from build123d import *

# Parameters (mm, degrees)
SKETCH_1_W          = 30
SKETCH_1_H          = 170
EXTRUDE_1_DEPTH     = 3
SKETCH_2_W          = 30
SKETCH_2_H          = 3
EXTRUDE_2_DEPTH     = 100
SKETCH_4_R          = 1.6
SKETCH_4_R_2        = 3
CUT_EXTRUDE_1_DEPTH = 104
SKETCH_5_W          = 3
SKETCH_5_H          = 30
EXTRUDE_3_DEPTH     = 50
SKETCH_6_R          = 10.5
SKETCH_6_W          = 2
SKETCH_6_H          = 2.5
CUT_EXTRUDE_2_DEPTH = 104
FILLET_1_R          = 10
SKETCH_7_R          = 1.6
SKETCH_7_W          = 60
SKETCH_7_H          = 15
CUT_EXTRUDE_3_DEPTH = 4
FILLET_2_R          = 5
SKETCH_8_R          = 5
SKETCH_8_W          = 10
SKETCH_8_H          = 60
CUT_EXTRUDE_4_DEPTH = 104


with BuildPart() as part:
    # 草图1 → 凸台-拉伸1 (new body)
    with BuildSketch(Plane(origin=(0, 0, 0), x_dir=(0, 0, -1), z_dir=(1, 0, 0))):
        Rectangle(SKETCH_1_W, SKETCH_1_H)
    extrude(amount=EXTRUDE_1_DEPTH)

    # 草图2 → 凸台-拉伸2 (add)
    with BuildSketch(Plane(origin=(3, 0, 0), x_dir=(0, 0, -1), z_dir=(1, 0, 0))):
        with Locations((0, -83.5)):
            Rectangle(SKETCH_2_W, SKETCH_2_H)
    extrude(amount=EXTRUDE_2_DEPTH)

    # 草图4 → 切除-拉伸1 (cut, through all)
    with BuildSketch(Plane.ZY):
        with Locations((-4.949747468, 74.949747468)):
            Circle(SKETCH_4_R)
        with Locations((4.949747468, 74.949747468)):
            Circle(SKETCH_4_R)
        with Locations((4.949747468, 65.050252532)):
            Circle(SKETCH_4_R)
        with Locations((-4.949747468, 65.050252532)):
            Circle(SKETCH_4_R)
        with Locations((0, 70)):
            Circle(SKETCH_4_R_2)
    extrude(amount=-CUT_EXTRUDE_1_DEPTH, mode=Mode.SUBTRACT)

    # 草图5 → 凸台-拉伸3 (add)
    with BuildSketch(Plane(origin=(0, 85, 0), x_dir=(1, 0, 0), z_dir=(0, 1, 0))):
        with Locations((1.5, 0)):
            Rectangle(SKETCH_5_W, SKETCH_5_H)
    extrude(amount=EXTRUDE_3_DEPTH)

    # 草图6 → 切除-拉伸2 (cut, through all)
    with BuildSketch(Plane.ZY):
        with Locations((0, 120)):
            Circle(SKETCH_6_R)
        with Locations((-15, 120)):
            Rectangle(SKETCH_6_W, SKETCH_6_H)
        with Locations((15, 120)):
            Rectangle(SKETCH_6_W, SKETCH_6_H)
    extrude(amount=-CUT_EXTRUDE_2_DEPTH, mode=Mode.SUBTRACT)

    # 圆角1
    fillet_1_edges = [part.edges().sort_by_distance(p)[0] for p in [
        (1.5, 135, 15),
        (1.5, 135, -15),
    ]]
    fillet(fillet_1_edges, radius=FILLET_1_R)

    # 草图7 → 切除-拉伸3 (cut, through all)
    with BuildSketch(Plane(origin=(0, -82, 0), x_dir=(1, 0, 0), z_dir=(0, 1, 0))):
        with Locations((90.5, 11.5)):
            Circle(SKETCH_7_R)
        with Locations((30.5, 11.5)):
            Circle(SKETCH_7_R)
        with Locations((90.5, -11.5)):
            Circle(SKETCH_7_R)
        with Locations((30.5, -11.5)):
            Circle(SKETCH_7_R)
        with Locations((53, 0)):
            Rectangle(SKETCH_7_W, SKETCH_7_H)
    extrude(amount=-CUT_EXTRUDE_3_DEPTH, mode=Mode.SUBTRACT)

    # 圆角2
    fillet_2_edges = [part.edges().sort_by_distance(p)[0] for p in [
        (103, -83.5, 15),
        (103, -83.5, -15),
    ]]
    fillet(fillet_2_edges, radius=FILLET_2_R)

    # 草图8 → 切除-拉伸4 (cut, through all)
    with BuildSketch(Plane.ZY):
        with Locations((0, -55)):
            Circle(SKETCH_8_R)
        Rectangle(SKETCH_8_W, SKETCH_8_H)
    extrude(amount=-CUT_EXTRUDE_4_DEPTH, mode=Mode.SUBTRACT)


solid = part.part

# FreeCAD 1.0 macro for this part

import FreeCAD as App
import Part
import Sketcher

V = App.Vector


def edges_at(feature, points):
    """Names of the edges that pass closest to the given points."""
    edges = feature.Shape.Edges
    near = lambda p: min(range(len(edges)), key=lambda i: edges[i].distToShape(Part.Vertex(*p))[0])
    return sorted({f"Edge{near(p) + 1}" for p in points})

doc = App.newDocument("Part")
body = doc.addObject("PartDesign::Body", "Body")

sketch1 = body.newObject("Sketcher::SketchObject", "Sketch")
sketch1.AttachmentSupport = (doc.getObject("YZ_Plane"), [""])
sketch1.MapMode = "FlatFace"
sketch1.addGeometry(Part.LineSegment(V(85, 15, 0), V(-85, 15, 0)), False)
sketch1.addGeometry(Part.LineSegment(V(-85, 15, 0), V(-85, -15, 0)), False)
sketch1.addGeometry(Part.LineSegment(V(-85, -15, 0), V(85, -15, 0)), False)
sketch1.addGeometry(Part.LineSegment(V(85, -15, 0), V(85, 15, 0)), False)
sketch1.addConstraint(Sketcher.Constraint("Coincident", 0, 2, 1, 1))
sketch1.addConstraint(Sketcher.Constraint("Coincident", 1, 2, 2, 1))
sketch1.addConstraint(Sketcher.Constraint("Coincident", 2, 2, 3, 1))
sketch1.addConstraint(Sketcher.Constraint("Coincident", 3, 2, 0, 1))
sketch1.addConstraint(Sketcher.Constraint("Horizontal", 0))
sketch1.addConstraint(Sketcher.Constraint("Vertical", 1))
sketch1.addConstraint(Sketcher.Constraint("Horizontal", 2))
sketch1.addConstraint(Sketcher.Constraint("Vertical", 3))
sketch1.addConstraint(Sketcher.Constraint("Symmetric", 0, 2, 2, 2, -1, 1))
sketch1.addConstraint(Sketcher.Constraint("DistanceX", 0, 2, 0, 1, 170.0))
sketch1.addConstraint(Sketcher.Constraint("DistanceY", 1, 2, 1, 1, 30.0))
pad1 = body.newObject("PartDesign::Pad", "Pad")
pad1.Profile = sketch1
pad1.Length = 3

sketch2 = body.newObject("Sketcher::SketchObject", "Sketch001")
sketch2.AttachmentSupport = (doc.getObject("YZ_Plane"), [""])
sketch2.MapMode = "FlatFace"
sketch2.AttachmentOffset = App.Placement(V(0, 0, 3), App.Rotation())
sketch2.addGeometry(Part.LineSegment(V(-82, 15, 0), V(-85, 15, 0)), False)
sketch2.addGeometry(Part.LineSegment(V(-85, 15, 0), V(-85, -15, 0)), False)
sketch2.addGeometry(Part.LineSegment(V(-85, -15, 0), V(-82, -15, 0)), False)
sketch2.addGeometry(Part.LineSegment(V(-82, -15, 0), V(-82, 15, 0)), False)
sketch2.addConstraint(Sketcher.Constraint("Coincident", 0, 2, 1, 1))
sketch2.addConstraint(Sketcher.Constraint("Coincident", 1, 2, 2, 1))
sketch2.addConstraint(Sketcher.Constraint("Coincident", 2, 2, 3, 1))
sketch2.addConstraint(Sketcher.Constraint("Coincident", 3, 2, 0, 1))
sketch2.addConstraint(Sketcher.Constraint("Horizontal", 0))
sketch2.addConstraint(Sketcher.Constraint("Vertical", 1))
sketch2.addConstraint(Sketcher.Constraint("Horizontal", 2))
sketch2.addConstraint(Sketcher.Constraint("Vertical", 3))
sketch2.addConstraint(Sketcher.Constraint("DistanceX", 0, 2, 0, 1, 3.0))
sketch2.addConstraint(Sketcher.Constraint("DistanceY", 1, 2, 1, 1, 30.0))
sketch2.addConstraint(Sketcher.Constraint("DistanceX", 0, 2, -1, 1, 85.0))
sketch2.addConstraint(Sketcher.Constraint("DistanceY", -1, 1, 0, 2, 15.0))
pad2 = body.newObject("PartDesign::Pad", "Pad001")
pad2.Profile = sketch2
pad2.Length = 100

sketch3 = body.newObject("Sketcher::SketchObject", "Sketch002")
sketch3.AttachmentSupport = (doc.getObject("YZ_Plane"), [""])
sketch3.MapMode = "FlatFace"
sketch3.addGeometry(Part.Circle(V(74.949747, -4.949747, 0), V(0, 0, 1), 1.6), False)
sketch3.addGeometry(Part.Circle(V(74.949747, 4.949747, 0), V(0, 0, 1), 1.6), False)
sketch3.addGeometry(Part.Circle(V(65.050253, 4.949747, 0), V(0, 0, 1), 1.6), False)
sketch3.addGeometry(Part.Circle(V(65.050253, -4.949747, 0), V(0, 0, 1), 1.6), False)
sketch3.addGeometry(Part.Circle(V(70, 0, 0), V(0, 0, 1), 3), False)
sketch3.addConstraint(Sketcher.Constraint("Equal", 0, 1))
sketch3.addConstraint(Sketcher.Constraint("Equal", 1, 2))
sketch3.addConstraint(Sketcher.Constraint("Equal", 2, 3))
sketch3.addConstraint(Sketcher.Constraint("Symmetric", 0, 3, 1, 3, -1))
sketch3.addConstraint(Sketcher.Constraint("Symmetric", 2, 3, 3, 3, -1))
sketch3.addConstraint(Sketcher.Constraint("PointOnObject", 4, 3, -1))
sketch3.addConstraint(Sketcher.Constraint("Horizontal", 1, 3, 2, 3))
sketch3.addConstraint(Sketcher.Constraint("Diameter", 4, 6.0))
sketch3.addConstraint(Sketcher.Constraint("Diameter", 0, 3.2))
sketch3.addConstraint(Sketcher.Constraint("DistanceX", -1, 1, 4, 3, 70.0))
sketch3.addConstraint(Sketcher.Constraint("DistanceX", -1, 1, 0, 3, 74.949747))
sketch3.addConstraint(Sketcher.Constraint("DistanceY", 0, 3, -1, 1, 4.949747))
sketch3.addConstraint(Sketcher.Constraint("DistanceX", -1, 1, 2, 3, 65.050253))
pocket1 = body.newObject("PartDesign::Pocket", "Pocket")
pocket1.Profile = sketch3
pocket1.Type = "ThroughAll"
pocket1.Reversed = True

sketch4 = body.newObject("Sketcher::SketchObject", "Sketch003")
sketch4.AttachmentSupport = (doc.getObject("XZ_Plane"), [""])
sketch4.MapMode = "FlatFace"
sketch4.AttachmentOffset = App.Placement(V(0, 0, -85), App.Rotation())
sketch4.addGeometry(Part.LineSegment(V(0, -15, 0), V(0, 15, 0)), False)
sketch4.addGeometry(Part.LineSegment(V(0, 15, 0), V(3, 15, 0)), False)
sketch4.addGeometry(Part.LineSegment(V(3, 15, 0), V(3, -15, 0)), False)
sketch4.addGeometry(Part.LineSegment(V(3, -15, 0), V(0, -15, 0)), False)
sketch4.addConstraint(Sketcher.Constraint("Coincident", 0, 2, 1, 1))
sketch4.addConstraint(Sketcher.Constraint("Coincident", 1, 2, 2, 1))
sketch4.addConstraint(Sketcher.Constraint("Coincident", 2, 2, 3, 1))
sketch4.addConstraint(Sketcher.Constraint("Coincident", 3, 2, 0, 1))
sketch4.addConstraint(Sketcher.Constraint("Vertical", 0))
sketch4.addConstraint(Sketcher.Constraint("Horizontal", 1))
sketch4.addConstraint(Sketcher.Constraint("Vertical", 2))
sketch4.addConstraint(Sketcher.Constraint("Horizontal", 3))
sketch4.addConstraint(Sketcher.Constraint("Symmetric", 0, 2, 3, 2, -1, 1))
sketch4.addConstraint(Sketcher.Constraint("DistanceX", 1, 1, 1, 2, 3.0))
sketch4.addConstraint(Sketcher.Constraint("DistanceY", 0, 1, 0, 2, 30.0))
pad3 = body.newObject("PartDesign::Pad", "Pad002")
pad3.Profile = sketch4
pad3.Length = 50
pad3.Reversed = True

sketch5 = body.newObject("Sketcher::SketchObject", "Sketch004")
sketch5.AttachmentSupport = (doc.getObject("YZ_Plane"), [""])
sketch5.MapMode = "FlatFace"
sketch5.addGeometry(Part.Circle(V(120, 0, 0), V(0, 0, 1), 10.5), False)
sketch5.addGeometry(Part.LineSegment(V(121.25, -16, 0), V(118.75, -16, 0)), False)
sketch5.addGeometry(Part.LineSegment(V(118.75, -16, 0), V(118.75, -14, 0)), False)
sketch5.addGeometry(Part.LineSegment(V(118.75, -14, 0), V(121.25, -14, 0)), False)
sketch5.addGeometry(Part.LineSegment(V(121.25, -14, 0), V(121.25, -16, 0)), False)
sketch5.addGeometry(Part.LineSegment(V(121.25, 14, 0), V(118.75, 14, 0)), False)
sketch5.addGeometry(Part.LineSegment(V(118.75, 14, 0), V(118.75, 16, 0)), False)
sketch5.addGeometry(Part.LineSegment(V(118.75, 16, 0), V(121.25, 16, 0)), False)
sketch5.addGeometry(Part.LineSegment(V(121.25, 16, 0), V(121.25, 14, 0)), False)
sketch5.addConstraint(Sketcher.Constraint("Coincident", 1, 2, 2, 1))
sketch5.addConstraint(Sketcher.Constraint("Coincident", 2, 2, 3, 1))
sketch5.addConstraint(Sketcher.Constraint("Coincident", 3, 2, 4, 1))
sketch5.addConstraint(Sketcher.Constraint("Coincident", 4, 2, 1, 1))
sketch5.addConstraint(Sketcher.Constraint("Coincident", 5, 2, 6, 1))
sketch5.addConstraint(Sketcher.Constraint("Coincident", 6, 2, 7, 1))
sketch5.addConstraint(Sketcher.Constraint("Coincident", 7, 2, 8, 1))
sketch5.addConstraint(Sketcher.Constraint("Coincident", 8, 2, 5, 1))
sketch5.addConstraint(Sketcher.Constraint("Horizontal", 1))
sketch5.addConstraint(Sketcher.Constraint("Vertical", 2))
sketch5.addConstraint(Sketcher.Constraint("Horizontal", 3))
sketch5.addConstraint(Sketcher.Constraint("Vertical", 4))
sketch5.addConstraint(Sketcher.Constraint("Horizontal", 5))
sketch5.addConstraint(Sketcher.Constraint("Vertical", 6))
sketch5.addConstraint(Sketcher.Constraint("Horizontal", 7))
sketch5.addConstraint(Sketcher.Constraint("Vertical", 8))
sketch5.addConstraint(Sketcher.Constraint("Symmetric", 2, 2, 5, 2, -1))
sketch5.addConstraint(Sketcher.Constraint("Symmetric", 4, 2, 7, 2, -1))
sketch5.addConstraint(Sketcher.Constraint("PointOnObject", 0, 3, -1))
sketch5.addConstraint(Sketcher.Constraint("Diameter", 0, 21.0))
sketch5.addConstraint(Sketcher.Constraint("DistanceY", 2, 1, 2, 2, 2.0))
sketch5.addConstraint(Sketcher.Constraint("DistanceX", 1, 2, 1, 1, 2.5))
sketch5.addConstraint(Sketcher.Constraint("DistanceX", -1, 1, 0, 3, 120.0))
sketch5.addConstraint(Sketcher.Constraint("DistanceY", 1, 2, -1, 1, 16.0))
sketch5.addConstraint(Sketcher.Constraint("DistanceX", -1, 1, 1, 2, 118.75))
pocket2 = body.newObject("PartDesign::Pocket", "Pocket001")
pocket2.Profile = sketch5
pocket2.Type = "ThroughAll"
pocket2.Reversed = True
doc.recompute()

fillet = body.newObject("PartDesign::Fillet", "Fillet")
fillet.Base = (pocket2, edges_at(pocket2, [(1.5, 135, 15), (1.5, 135, -15)]))
fillet.Radius = 10

sketch6 = body.newObject("Sketcher::SketchObject", "Sketch005")
sketch6.AttachmentSupport = (doc.getObject("XZ_Plane"), [""])
sketch6.MapMode = "FlatFace"
sketch6.AttachmentOffset = App.Placement(V(0, 0, 82), App.Rotation())
sketch6.addGeometry(Part.Circle(V(90.5, -11.5, 0), V(0, 0, 1), 1.6), False)
sketch6.addGeometry(Part.Circle(V(30.5, -11.5, 0), V(0, 0, 1), 1.6), False)
sketch6.addGeometry(Part.Circle(V(90.5, 11.5, 0), V(0, 0, 1), 1.6), False)
sketch6.addGeometry(Part.Circle(V(30.5, 11.5, 0), V(0, 0, 1), 1.6), False)
sketch6.addGeometry(Part.LineSegment(V(23, -7.5, 0), V(23, 7.5, 0)), False)
sketch6.addGeometry(Part.LineSegment(V(23, 7.5, 0), V(83, 7.5, 0)), False)
sketch6.addGeometry(Part.LineSegment(V(83, 7.5, 0), V(83, -7.5, 0)), False)
sketch6.addGeometry(Part.LineSegment(V(83, -7.5, 0), V(23, -7.5, 0)), False)
sketch6.addConstraint(Sketcher.Constraint("Coincident", 4, 2, 5, 1))
sketch6.addConstraint(Sketcher.Constraint("Coincident", 5, 2, 6, 1))
sketch6.addConstraint(Sketcher.Constraint("Coincident", 6, 2, 7, 1))
sketch6.addConstraint(Sketcher.Constraint("Coincident", 7, 2, 4, 1))
sketch6.addConstraint(Sketcher.Constraint("Vertical", 4))
sketch6.addConstraint(Sketcher.Constraint("Horizontal", 5))
sketch6.addConstraint(Sketcher.Constraint("Vertical", 6))
sketch6.addConstraint(Sketcher.Constraint("Horizontal", 7))
sketch6.addConstraint(Sketcher.Constraint("Equal", 0, 1))
sketch6.addConstraint(Sketcher.Constraint("Equal", 1, 2))
sketch6.addConstraint(Sketcher.Constraint("Equal", 2, 3))
sketch6.addConstraint(Sketcher.Constraint("Symmetric", 0, 3, 2, 3, -1))
sketch6.addConstraint(Sketcher.Constraint("Symmetric", 1, 3, 3, 3, -1))
sketch6.addConstraint(Sketcher.Constraint("Horizontal", 0, 3, 1, 3))
sketch6.addConstraint(Sketcher.Constraint("Diameter", 0, 3.2))
sketch6.addConstraint(Sketcher.Constraint("DistanceX", 5, 1, 5, 2, 60.0))
sketch6.addConstraint(Sketcher.Constraint("DistanceY", 4, 1, 4, 2, 15.0))
sketch6.addConstraint(Sketcher.Constraint("DistanceX", -1, 1, 4, 2, 23.0))
sketch6.addConstraint(Sketcher.Constraint("DistanceX", 1, 3, 0, 3, 60.0))
sketch6.addConstraint(Sketcher.Constraint("DistanceY", 0, 3, 2, 3, 23.0))
sketch6.addConstraint(Sketcher.Constraint("DistanceY", 4, 2, 3, 3, 4.0))
sketch6.addConstraint(Sketcher.Constraint("DistanceX", -1, 1, 0, 3, 90.5))
pocket3 = body.newObject("PartDesign::Pocket", "Pocket002")
pocket3.Profile = sketch6
pocket3.Type = "ThroughAll"
pocket3.Reversed = True
doc.recompute()

fillet2 = body.newObject("PartDesign::Fillet", "Fillet001")
fillet2.Base = (pocket3, edges_at(pocket3, [(103, -83.5, 15), (103, -83.5, -15)]))
fillet2.Radius = 5

sketch7 = body.newObject("Sketcher::SketchObject", "Sketch006")
sketch7.AttachmentSupport = (doc.getObject("YZ_Plane"), [""])
sketch7.MapMode = "FlatFace"
sketch7.addGeometry(Part.Circle(V(-55, 0, 0), V(0, 0, 1), 5), False)
sketch7.addGeometry(Part.LineSegment(V(30, -5, 0), V(-30, -5, 0)), False)
sketch7.addGeometry(Part.LineSegment(V(-30, -5, 0), V(-30, 5, 0)), False)
sketch7.addGeometry(Part.LineSegment(V(-30, 5, 0), V(30, 5, 0)), False)
sketch7.addGeometry(Part.LineSegment(V(30, 5, 0), V(30, -5, 0)), False)
sketch7.addConstraint(Sketcher.Constraint("Coincident", 1, 2, 2, 1))
sketch7.addConstraint(Sketcher.Constraint("Coincident", 2, 2, 3, 1))
sketch7.addConstraint(Sketcher.Constraint("Coincident", 3, 2, 4, 1))
sketch7.addConstraint(Sketcher.Constraint("Coincident", 4, 2, 1, 1))
sketch7.addConstraint(Sketcher.Constraint("Horizontal", 1))
sketch7.addConstraint(Sketcher.Constraint("Vertical", 2))
sketch7.addConstraint(Sketcher.Constraint("Horizontal", 3))
sketch7.addConstraint(Sketcher.Constraint("Vertical", 4))
sketch7.addConstraint(Sketcher.Constraint("Symmetric", 1, 2, 3, 2, -1, 1))
sketch7.addConstraint(Sketcher.Constraint("PointOnObject", 0, 3, -1))
sketch7.addConstraint(Sketcher.Constraint("Diameter", 0, 10.0))
sketch7.addConstraint(Sketcher.Constraint("DistanceX", 1, 2, 1, 1, 60.0))
sketch7.addConstraint(Sketcher.Constraint("DistanceY", 2, 1, 2, 2, 10.0))
sketch7.addConstraint(Sketcher.Constraint("DistanceX", 0, 3, -1, 1, 55.0))
pocket4 = body.newObject("PartDesign::Pocket", "Pocket003")
pocket4.Profile = sketch7
pocket4.Type = "ThroughAll"
pocket4.Reversed = True

doc.recompute()
